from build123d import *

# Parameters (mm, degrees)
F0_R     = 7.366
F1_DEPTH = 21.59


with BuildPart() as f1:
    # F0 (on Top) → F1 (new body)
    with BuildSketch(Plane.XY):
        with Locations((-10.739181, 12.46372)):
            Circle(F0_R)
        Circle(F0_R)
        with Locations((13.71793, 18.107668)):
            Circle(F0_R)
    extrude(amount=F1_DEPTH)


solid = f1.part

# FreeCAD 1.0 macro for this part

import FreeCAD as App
import Part
import Sketcher
from FreeCAD import Vector
Q = App.Units.Quantity

doc = App.newDocument("Part")
body = doc.addObject("PartDesign::Body", "Body")
body.AllowCompound = True

sketch1 = body.newObject("Sketcher::SketchObject", "Sketch")
sketch1.AttachmentSupport = (doc.getObject("XY_Plane"), [""])
sketch1.MapMode = "FlatFace"
sketch1.addGeometry([
    Part.Circle(Vector(-11, 12, 0), Vector(0, 0, 1), 7),
    Part.Circle(Vector(0, 0, 0), Vector(0, 0, 1), 7),
    Part.Circle(Vector(14, 18, 0), Vector(0, 0, 1), 7),
], False)
sketch1.addConstraint([
    Sketcher.Constraint("Coincident", 1, 3, -1, 1),
    Sketcher.Constraint("Equal", 0, 1),
    Sketcher.Constraint("Equal", 1, 2),
    Sketcher.Constraint("Diameter", 0, Q("0.58 in")),
    Sketcher.Constraint("DistanceX", 0, 3, -1, 1, Q("10.739181 mm")),
    Sketcher.Constraint("DistanceY", -1, 1, 0, 3, Q("12.46372 mm")),
    Sketcher.Constraint("DistanceX", -1, 1, 2, 3, Q("13.71793 mm")),
    Sketcher.Constraint("DistanceY", -1, 1, 2, 3, Q("18.107668 mm")),
])
pad1 = body.newObject("PartDesign::Pad", "Pad")
pad1.Profile = sketch1
pad1.Length = Q("0.85 in")

doc.recompute()
